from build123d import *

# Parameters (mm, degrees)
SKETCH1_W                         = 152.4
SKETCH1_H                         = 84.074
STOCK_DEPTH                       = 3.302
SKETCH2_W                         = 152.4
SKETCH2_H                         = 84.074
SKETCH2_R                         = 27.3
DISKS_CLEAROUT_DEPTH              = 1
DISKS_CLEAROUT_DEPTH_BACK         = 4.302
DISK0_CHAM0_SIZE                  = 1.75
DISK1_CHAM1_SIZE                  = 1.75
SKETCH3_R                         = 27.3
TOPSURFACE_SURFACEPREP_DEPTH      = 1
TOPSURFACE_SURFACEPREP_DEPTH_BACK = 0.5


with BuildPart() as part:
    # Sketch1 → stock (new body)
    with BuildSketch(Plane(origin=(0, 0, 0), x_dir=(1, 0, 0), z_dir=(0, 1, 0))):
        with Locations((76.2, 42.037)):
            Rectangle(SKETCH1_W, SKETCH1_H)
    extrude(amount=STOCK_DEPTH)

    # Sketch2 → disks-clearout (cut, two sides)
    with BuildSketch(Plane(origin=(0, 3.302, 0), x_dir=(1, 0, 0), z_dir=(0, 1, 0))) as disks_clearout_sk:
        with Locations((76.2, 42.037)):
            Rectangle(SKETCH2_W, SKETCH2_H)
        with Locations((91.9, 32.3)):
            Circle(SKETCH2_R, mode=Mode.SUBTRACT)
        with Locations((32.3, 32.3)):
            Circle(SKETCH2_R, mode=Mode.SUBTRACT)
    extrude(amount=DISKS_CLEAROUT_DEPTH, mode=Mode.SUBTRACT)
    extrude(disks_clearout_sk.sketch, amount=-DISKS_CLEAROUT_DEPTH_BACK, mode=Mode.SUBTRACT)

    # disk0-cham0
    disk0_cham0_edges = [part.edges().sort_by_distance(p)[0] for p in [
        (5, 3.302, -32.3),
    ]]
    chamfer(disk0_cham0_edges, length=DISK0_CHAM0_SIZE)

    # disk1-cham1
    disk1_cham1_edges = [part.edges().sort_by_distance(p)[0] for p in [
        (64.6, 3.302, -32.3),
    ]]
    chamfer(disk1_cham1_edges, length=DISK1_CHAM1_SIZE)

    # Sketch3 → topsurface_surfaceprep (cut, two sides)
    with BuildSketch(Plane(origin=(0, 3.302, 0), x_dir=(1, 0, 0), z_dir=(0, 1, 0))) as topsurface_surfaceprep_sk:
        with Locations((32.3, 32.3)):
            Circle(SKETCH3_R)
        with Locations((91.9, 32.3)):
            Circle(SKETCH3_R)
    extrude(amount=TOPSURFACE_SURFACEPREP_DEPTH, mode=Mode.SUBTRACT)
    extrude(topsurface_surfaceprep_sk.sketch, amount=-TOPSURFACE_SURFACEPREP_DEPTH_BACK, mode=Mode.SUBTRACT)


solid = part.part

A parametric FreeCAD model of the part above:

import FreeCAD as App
import Part
import Sketcher
Q = App.Units.Quantity


def edges_at(feature, points):
    """Names of the edges that pass closest to the given points."""
    edges = feature.Shape.Edges
    near = lambda p: min(range(len(edges)), key=lambda i: edges[i].distToShape(Part.Vertex(*p))[0])
    return sorted({f"Edge{near(p) + 1}" for p in points})

doc = App.newDocument("Part")
body = doc.addObject("PartDesign::Body", "Body")
body.AllowCompound = True

sketch1 = body.newObject("Sketcher::SketchObject", "Sketch")
sketch1.AttachmentSupport = (doc.getObject("XZ_Plane"), [""])
sketch1.MapMode = "FlatFace"
sketch1.addGeometry([
    Part.LineSegment(App.Vector(0, -84.074, 0), App.Vector(0, 0, 0)),
    Part.LineSegment(App.Vector(0, 0, 0), App.Vector(152.4, 0, 0)),
    Part.LineSegment(App.Vector(152.4, 0, 0), App.Vector(152.4, -84.074, 0)),
    Part.LineSegment(App.Vector(152.4, -84.074, 0), App.Vector(0, -84.074, 0)),
], False)
sketch1.addConstraint([
    Sketcher.Constraint("Coincident", 0, 2, 1, 1),
    Sketcher.Constraint("Coincident", 1, 2, 2, 1),
    Sketcher.Constraint("Coincident", 2, 2, 3, 1),
    Sketcher.Constraint("Coincident", 3, 2, 0, 1),
    Sketcher.Constraint("Vertical", 0),
    Sketcher.Constraint("Horizontal", 1),
    Sketcher.Constraint("Vertical", 2),
    Sketcher.Constraint("Horizontal", 3),
    Sketcher.Constraint("Coincident", 0, 2, -1, 1),
    Sketcher.Constraint("DistanceX", 1, 1, 1, 2, Q("6 in")),
    Sketcher.Constraint("DistanceY", 0, 1, 0, 2, Q("3.31 in")),
])
pad1 = body.newObject("PartDesign::Pad", "Pad")
pad1.Profile = sketch1
pad1.Length = Q("0.13 in")
pad1.Reversed = True

sketch2 = body.newObject("Sketcher::SketchObject", "Sketch001")
sketch2.AttachmentSupport = (doc.getObject("XZ_Plane"), [""])
sketch2.MapMode = "FlatFace"
sketch2.AttachmentOffset = App.Placement(App.Vector(0, 0, -0.13 * 25.4), App.Rotation())
sketch2.addGeometry([
    Part.LineSegment(App.Vector(0, -84.074, 0), App.Vector(0, 0, 0)),
    Part.LineSegment(App.Vector(0, 0, 0), App.Vector(152.4, 0, 0)),
    Part.LineSegment(App.Vector(152.4, 0, 0), App.Vector(152.4, -84.074, 0)),
    Part.LineSegment(App.Vector(152.4, -84.074, 0), App.Vector(0, -84.074, 0)),
    Part.Circle(App.Vector(32.3, -32.3, 0), App.Vector(0, 0, 1), 27.3),
    Part.Circle(App.Vector(91.9, -32.3, 0), App.Vector(0, 0, 1), 27.3),
], False)
sketch2.addConstraint([
    Sketcher.Constraint("Coincident", 0, 2, 1, 1),
    Sketcher.Constraint("Coincident", 1, 2, 2, 1),
    Sketcher.Constraint("Coincident", 2, 2, 3, 1),
    Sketcher.Constraint("Coincident", 3, 2, 0, 1),
    Sketcher.Constraint("Vertical", 0),
    Sketcher.Constraint("Horizontal", 1),
    Sketcher.Constraint("Vertical", 2),
    Sketcher.Constraint("Horizontal", 3),
    Sketcher.Constraint("Coincident", 0, 2, -1, 1),
    Sketcher.Constraint("Equal", 4, 5),
    Sketcher.Constraint("Horizontal", 4, 3, 5, 3),
    Sketcher.Constraint("DistanceX", 1, 1, 1, 2, Q("6 in")),
    Sketcher.Constraint("DistanceY", 0, 1, 0, 2, Q("3.31 in")),
    Sketcher.Constraint("Diameter", 4, Q("54.6 mm")),
    Sketcher.Constraint("DistanceX", -1, 1, 4, 3, Q("32.3 mm")),
    Sketcher.Constraint("DistanceY", 4, 3, -1, 1, Q("32.3 mm")),
    Sketcher.Constraint("DistanceX", -1, 1, 5, 3, Q("91.9 mm")),
])
pocket1 = body.newObject("PartDesign::Pocket", "Pocket")
pocket1.Profile = sketch2
pocket1.Type = "ThroughAll"
pocket1.Midplane = True
doc.recompute()

chamfer = body.newObject("PartDesign::Chamfer", "Chamfer")
chamfer.Base = (pocket1, edges_at(pocket1, [(5, 3.302, -32.3)]))
chamfer.Size = 1.75
doc.recompute()

chamfer2 = body.newObject("PartDesign::Chamfer", "Chamfer001")
chamfer2.Base = (chamfer, edges_at(chamfer, [(64.6, 3.302, -32.3)]))
chamfer2.Size = 1.75

sketch3 = body.newObject("Sketcher::SketchObject", "Sketch002")
sketch3.AttachmentSupport = (doc.getObject("XZ_Plane"), [""])
sketch3.MapMode = "FlatFace"
sketch3.AttachmentOffset = App.Placement(App.Vector(0, 0, -0.13 * 25.4), App.Rotation())
sketch3.addGeometry([
    Part.Circle(App.Vector(32.3, -32.3, 0), App.Vector(0, 0, 1), 27.3),
    Part.Circle(App.Vector(91.9, -32.3, 0), App.Vector(0, 0, 1), 27.3),
], False)
sketch3.addConstraint([
    Sketcher.Constraint("Equal", 0, 1),
    Sketcher.Constraint("Horizontal", 0, 3, 1, 3),
    Sketcher.Constraint("Diameter", 0, Q("54.6 mm")),
    Sketcher.Constraint("DistanceX", -1, 1, 0, 3, Q("32.3 mm")),
    Sketcher.Constraint("DistanceY", 0, 3, -1, 1, Q("32.3 mm")),
    Sketcher.Constraint("DistanceX", -1, 1, 1, 3, Q("91.9 mm")),
])
pocket2 = body.newObject("PartDesign::Pocket", "Pocket001")
pocket2.Profile = sketch3
pocket2.Type = "TwoLengths"
pocket2.Length = 1
pocket2.Length2 = 0.5

doc.recompute()
